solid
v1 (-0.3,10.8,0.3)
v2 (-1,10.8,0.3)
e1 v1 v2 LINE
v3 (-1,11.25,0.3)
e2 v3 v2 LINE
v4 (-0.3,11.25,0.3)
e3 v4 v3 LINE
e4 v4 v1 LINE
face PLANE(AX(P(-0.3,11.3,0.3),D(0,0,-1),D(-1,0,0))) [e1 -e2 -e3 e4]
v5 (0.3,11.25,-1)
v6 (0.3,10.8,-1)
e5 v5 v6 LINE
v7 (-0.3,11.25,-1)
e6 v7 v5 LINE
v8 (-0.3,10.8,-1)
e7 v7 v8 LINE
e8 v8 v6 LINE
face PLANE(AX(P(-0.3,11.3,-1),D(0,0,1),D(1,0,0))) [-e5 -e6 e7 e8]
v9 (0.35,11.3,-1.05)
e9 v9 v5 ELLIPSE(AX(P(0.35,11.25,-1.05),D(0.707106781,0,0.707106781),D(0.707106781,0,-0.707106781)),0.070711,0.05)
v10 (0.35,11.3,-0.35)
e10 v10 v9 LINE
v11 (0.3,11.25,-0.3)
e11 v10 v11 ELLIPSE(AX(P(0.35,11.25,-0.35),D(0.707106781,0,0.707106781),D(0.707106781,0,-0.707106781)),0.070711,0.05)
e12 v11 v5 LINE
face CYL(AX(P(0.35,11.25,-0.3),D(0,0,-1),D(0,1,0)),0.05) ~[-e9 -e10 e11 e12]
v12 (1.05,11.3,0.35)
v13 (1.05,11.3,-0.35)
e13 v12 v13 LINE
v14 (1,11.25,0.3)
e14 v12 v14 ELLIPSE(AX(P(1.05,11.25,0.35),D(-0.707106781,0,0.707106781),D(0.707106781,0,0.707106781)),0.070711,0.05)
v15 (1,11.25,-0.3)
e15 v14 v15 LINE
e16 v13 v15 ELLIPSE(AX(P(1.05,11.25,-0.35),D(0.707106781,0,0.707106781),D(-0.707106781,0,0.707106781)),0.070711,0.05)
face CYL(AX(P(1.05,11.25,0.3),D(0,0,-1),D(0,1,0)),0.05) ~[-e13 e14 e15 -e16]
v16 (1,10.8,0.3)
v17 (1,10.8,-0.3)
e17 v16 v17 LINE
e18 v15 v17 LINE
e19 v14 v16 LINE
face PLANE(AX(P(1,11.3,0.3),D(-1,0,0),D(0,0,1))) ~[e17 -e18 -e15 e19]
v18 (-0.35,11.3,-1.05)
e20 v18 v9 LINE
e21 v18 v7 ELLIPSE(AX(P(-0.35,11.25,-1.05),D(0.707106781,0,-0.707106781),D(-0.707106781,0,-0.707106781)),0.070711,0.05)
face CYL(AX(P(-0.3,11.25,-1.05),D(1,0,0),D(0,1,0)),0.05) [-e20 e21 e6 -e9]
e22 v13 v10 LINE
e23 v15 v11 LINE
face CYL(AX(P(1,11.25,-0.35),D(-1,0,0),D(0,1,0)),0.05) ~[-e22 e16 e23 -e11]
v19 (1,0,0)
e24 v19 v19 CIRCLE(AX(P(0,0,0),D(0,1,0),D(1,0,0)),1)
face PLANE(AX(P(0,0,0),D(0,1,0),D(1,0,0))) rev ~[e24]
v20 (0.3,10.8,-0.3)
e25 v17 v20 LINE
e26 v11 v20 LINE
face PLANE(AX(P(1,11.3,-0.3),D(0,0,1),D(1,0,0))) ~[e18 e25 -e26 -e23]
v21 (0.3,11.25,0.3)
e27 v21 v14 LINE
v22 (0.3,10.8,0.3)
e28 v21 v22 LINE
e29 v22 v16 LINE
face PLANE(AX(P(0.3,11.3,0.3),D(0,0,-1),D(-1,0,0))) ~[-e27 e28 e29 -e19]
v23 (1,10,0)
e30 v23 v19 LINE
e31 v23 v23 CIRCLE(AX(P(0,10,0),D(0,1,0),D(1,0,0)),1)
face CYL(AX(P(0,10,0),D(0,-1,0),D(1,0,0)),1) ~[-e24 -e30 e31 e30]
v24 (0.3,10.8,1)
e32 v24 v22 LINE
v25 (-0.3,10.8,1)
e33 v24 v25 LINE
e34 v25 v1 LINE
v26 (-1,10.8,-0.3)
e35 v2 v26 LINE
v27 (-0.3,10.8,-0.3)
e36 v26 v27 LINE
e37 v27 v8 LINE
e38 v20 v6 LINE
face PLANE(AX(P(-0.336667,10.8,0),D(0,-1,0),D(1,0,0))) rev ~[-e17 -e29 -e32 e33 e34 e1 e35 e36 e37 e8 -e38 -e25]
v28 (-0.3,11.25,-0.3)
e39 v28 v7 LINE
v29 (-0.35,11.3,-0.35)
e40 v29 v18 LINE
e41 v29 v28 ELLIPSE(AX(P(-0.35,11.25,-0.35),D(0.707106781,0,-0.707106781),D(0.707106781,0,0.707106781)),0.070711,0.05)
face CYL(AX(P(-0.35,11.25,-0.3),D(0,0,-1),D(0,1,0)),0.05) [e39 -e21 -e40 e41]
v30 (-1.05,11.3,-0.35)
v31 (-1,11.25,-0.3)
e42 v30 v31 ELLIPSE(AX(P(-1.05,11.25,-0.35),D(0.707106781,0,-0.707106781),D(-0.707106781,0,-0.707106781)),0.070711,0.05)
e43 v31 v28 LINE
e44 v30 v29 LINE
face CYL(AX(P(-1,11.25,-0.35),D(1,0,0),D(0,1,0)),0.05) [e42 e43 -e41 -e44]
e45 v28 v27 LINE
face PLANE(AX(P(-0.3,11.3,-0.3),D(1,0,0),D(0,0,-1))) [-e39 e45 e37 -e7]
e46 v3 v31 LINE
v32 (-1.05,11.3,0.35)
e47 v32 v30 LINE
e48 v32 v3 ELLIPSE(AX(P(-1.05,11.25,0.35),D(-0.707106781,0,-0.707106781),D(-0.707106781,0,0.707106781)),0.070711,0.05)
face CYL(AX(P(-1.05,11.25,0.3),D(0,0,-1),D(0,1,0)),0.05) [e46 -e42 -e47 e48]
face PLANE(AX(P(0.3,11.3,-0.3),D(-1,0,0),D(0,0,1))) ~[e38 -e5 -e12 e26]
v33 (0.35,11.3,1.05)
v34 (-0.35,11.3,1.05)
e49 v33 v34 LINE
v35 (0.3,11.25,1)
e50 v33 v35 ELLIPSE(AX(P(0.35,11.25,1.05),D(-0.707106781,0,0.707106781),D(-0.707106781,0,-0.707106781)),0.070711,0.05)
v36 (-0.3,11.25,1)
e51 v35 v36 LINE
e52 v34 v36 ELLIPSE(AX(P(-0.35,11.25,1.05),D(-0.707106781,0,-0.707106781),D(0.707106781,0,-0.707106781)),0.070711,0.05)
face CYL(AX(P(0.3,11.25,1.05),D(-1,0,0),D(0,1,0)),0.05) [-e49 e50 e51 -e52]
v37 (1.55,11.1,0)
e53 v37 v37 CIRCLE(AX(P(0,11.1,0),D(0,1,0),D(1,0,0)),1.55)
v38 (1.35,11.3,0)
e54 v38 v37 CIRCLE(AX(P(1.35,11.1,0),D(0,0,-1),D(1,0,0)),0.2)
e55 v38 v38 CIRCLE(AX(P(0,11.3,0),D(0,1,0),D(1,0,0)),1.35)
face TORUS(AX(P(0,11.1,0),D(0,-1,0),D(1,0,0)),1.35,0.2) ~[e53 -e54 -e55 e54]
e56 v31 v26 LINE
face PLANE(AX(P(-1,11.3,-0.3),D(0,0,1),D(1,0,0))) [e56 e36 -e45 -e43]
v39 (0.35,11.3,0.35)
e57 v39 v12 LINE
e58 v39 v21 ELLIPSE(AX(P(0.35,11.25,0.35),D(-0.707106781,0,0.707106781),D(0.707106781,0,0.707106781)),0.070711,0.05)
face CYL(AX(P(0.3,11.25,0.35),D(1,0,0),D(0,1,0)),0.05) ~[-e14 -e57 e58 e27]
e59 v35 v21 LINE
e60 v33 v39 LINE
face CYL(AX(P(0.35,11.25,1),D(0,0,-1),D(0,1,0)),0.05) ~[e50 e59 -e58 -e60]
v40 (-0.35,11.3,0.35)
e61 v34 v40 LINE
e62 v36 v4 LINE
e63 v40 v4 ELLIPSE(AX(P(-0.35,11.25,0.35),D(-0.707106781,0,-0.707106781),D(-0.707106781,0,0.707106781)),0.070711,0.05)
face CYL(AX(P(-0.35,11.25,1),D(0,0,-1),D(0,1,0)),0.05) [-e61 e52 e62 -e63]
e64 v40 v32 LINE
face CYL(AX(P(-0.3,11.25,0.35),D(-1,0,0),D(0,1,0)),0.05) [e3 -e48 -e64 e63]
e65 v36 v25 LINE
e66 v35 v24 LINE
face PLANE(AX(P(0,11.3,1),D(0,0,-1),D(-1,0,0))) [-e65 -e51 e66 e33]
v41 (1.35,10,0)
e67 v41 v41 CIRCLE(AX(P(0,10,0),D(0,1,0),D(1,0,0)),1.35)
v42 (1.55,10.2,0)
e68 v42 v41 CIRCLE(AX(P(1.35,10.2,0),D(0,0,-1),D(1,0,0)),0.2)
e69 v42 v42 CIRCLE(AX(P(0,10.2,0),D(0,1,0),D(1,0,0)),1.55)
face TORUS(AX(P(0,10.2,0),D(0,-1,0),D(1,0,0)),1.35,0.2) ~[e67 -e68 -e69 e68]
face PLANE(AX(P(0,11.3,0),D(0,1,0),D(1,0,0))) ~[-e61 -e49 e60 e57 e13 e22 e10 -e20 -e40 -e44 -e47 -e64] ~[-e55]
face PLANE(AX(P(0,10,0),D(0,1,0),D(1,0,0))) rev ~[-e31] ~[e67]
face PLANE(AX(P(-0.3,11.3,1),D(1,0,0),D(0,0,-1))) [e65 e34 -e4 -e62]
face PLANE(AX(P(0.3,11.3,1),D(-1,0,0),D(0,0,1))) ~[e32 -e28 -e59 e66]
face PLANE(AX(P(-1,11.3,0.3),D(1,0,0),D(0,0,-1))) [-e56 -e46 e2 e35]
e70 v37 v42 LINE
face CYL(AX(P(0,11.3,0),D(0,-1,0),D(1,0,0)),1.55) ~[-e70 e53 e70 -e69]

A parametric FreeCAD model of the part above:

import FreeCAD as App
import Part
import Sketcher
Q = App.Units.Quantity


def edges_at(feature, points):
    """Names of the edges that pass closest to the given points."""
    edges = feature.Shape.Edges
    near = lambda p: min(range(len(edges)), key=lambda i: edges[i].distToShape(Part.Vertex(*p))[0])
    return sorted({f"Edge{near(p) + 1}" for p in points})

doc = App.newDocument("Part")
params = doc.addObject("Spreadsheet::Sheet", "Params")
for row, (alias, value) in enumerate([
    ("sketch1_width", "1 mm"),
    ("sketch1_height", "10 mm"),
    ("sketch1_height2", "11.3 mm"),
    ("sketch1_width2", "0.55 mm"),
    ("revolution_angle", "360 deg"),
    ("fillet_radius", "0.2 mm"),
    ("sketch2_height", "2 mm"),
    ("sketch2_width", "0.3 mm"),
    ("sketch2_width2", "0.7 mm"),
    ("pocket1_length", "0.5 mm"),
    ("fillet2_radius", "0.05 mm"),
], start=1):
    params.set(f"A{row}", alias)
    params.set(f"B{row}", "=" + value)
    params.setAlias(f"B{row}", alias)

body = doc.addObject("PartDesign::Body", "Body")

# Sketch on XY plane
sketch1 = body.newObject("Sketcher::SketchObject", "Sketch")
sketch1.AttachmentSupport = (doc.getObject("XY_Plane"), [""])
sketch1.MapMode = "FlatFace"
sketch1.addGeometry([
    Part.LineSegment(App.Vector(0, 11.3, 0), App.Vector(0, 0, 0)),  # 0
    Part.LineSegment(App.Vector(0, 0, 0), App.Vector(1, 0, 0)),  # 1
    Part.LineSegment(App.Vector(1, 0, 0), App.Vector(1, 10, 0)),  # 2
    Part.LineSegment(App.Vector(1, 10, 0), App.Vector(1.55, 10, 0)),  # 3
    Part.LineSegment(App.Vector(1.55, 10, 0), App.Vector(1.55, 11.3, 0)),  # 4
    Part.LineSegment(App.Vector(1.55, 11.3, 0), App.Vector(0, 11.3, 0)),  # 5
], False)
sketch1.addConstraint([
    Sketcher.Constraint("Coincident", 0, 2, 1, 1),
    Sketcher.Constraint("Coincident", 1, 2, 2, 1),
    Sketcher.Constraint("Coincident", 2, 2, 3, 1),
    Sketcher.Constraint("Coincident", 3, 2, 4, 1),
    Sketcher.Constraint("Coincident", 4, 2, 5, 1),
    Sketcher.Constraint("Coincident", 5, 2, 0, 1),
    Sketcher.Constraint("Vertical", 0),
    Sketcher.Constraint("Horizontal", 1),
    Sketcher.Constraint("Vertical", 2),
    Sketcher.Constraint("Horizontal", 3),
    Sketcher.Constraint("Vertical", 4),
    Sketcher.Constraint("Horizontal", 5),
    Sketcher.Constraint("Coincident", 0, 2, -1, 1),
    Sketcher.Constraint("DistanceX", 1, 1, 1, 2, Q("1 mm")),
    Sketcher.Constraint("DistanceY", 2, 1, 2, 2, Q("10 mm")),
    Sketcher.Constraint("DistanceY", 0, 2, 0, 1, Q("11.3 mm")),
    Sketcher.Constraint("DistanceX", 3, 1, 3, 2, Q("0.55 mm")),
])
sketch1.setExpression("Constraints[13]", "Params.sketch1_width")
sketch1.setExpression("Constraints[14]", "Params.sketch1_height")
sketch1.setExpression("Constraints[15]", "Params.sketch1_height2")
sketch1.setExpression("Constraints[16]", "Params.sketch1_width2")
revolution = body.newObject("PartDesign::Revolution", "Revolution")
revolution.Profile = sketch1
revolution.ReferenceAxis = (sketch1, ["V_Axis"])
revolution.setExpression("Angle", "Params.revolution_angle")
doc.recompute()

fillet = body.newObject("PartDesign::Fillet", "Fillet")
fillet.Base = (revolution, edges_at(revolution, [(-1.55, 11.3, 0), (-1.55, 10, 0)]))
fillet.setExpression("Radius", "Params.fillet_radius")

# Sketch on XZ plane
sketch2 = body.newObject("Sketcher::SketchObject", "Sketch001")
sketch2.AttachmentSupport = (doc.getObject("XZ_Plane"), [""])
sketch2.MapMode = "FlatFace"
sketch2.AttachmentOffset = App.Placement(App.Vector(0, 0, -11.3), App.Rotation())
sketch2.addGeometry([
    Part.LineSegment(App.Vector(-0.3, 1, 0), App.Vector(0, 1, 0)),  # 0
    Part.LineSegment(App.Vector(0, 1, 0), App.Vector(0, -1, 0)),  # 1
    Part.LineSegment(App.Vector(0, -1, 0), App.Vector(-0.3, -1, 0)),  # 2
    Part.LineSegment(App.Vector(-0.3, -1, 0), App.Vector(-0.3, -0.3, 0)),  # 3
    Part.LineSegment(App.Vector(-0.3, -0.3, 0), App.Vector(-1, -0.3, 0)),  # 4
    Part.LineSegment(App.Vector(-1, -0.3, 0), App.Vector(-1, 0.3, 0)),  # 5
    Part.LineSegment(App.Vector(-1, 0.3, 0), App.Vector(-0.3, 0.3, 0)),  # 6
    Part.LineSegment(App.Vector(-0.3, 0.3, 0), App.Vector(-0.3, 1, 0)),  # 7
], False)
sketch2.addConstraint([
    Sketcher.Constraint("Coincident", 0, 2, 1, 1),
    Sketcher.Constraint("Coincident", 1, 2, 2, 1),
    Sketcher.Constraint("Coincident", 2, 2, 3, 1),
    Sketcher.Constraint("Coincident", 3, 2, 4, 1),
    Sketcher.Constraint("Coincident", 4, 2, 5, 1),
    Sketcher.Constraint("Coincident", 5, 2, 6, 1),
    Sketcher.Constraint("Coincident", 6, 2, 7, 1),
    Sketcher.Constraint("Coincident", 7, 2, 0, 1),
    Sketcher.Constraint("Horizontal", 0),
    Sketcher.Constraint("Vertical", 1),
    Sketcher.Constraint("Horizontal", 2),
    Sketcher.Constraint("Vertical", 3),
    Sketcher.Constraint("Horizontal", 4),
    Sketcher.Constraint("Vertical", 5),
    Sketcher.Constraint("Horizontal", 6),
    Sketcher.Constraint("Vertical", 7),
    Sketcher.Constraint("Symmetric", 0, 2, 1, 2, -1, 1),
    Sketcher.Constraint("Symmetric", 3, 2, 6, 2, -1),
    Sketcher.Constraint("Equal", 6, 3),
    Sketcher.Constraint("DistanceY", 1, 2, 1, 1, Q("2 mm")),
    Sketcher.Constraint("DistanceX", 0, 1, 0, 2, Q("0.3 mm")),
    Sketcher.Constraint("DistanceX", 4, 2, 4, 1, Q("0.7 mm")),
])
sketch2.setExpression("Constraints[19]", "Params.sketch2_height")
sketch2.setExpression("Constraints[20]", "Params.sketch2_width")
sketch2.setExpression("Constraints[21]", "Params.sketch2_width2")
pocket1 = body.newObject("PartDesign::Pocket", "Pocket")
pocket1.Profile = sketch2
pocket1.setExpression("Length", "Params.pocket1_length")
pocket1.Reversed = True
doc.recompute()

mirrored = body.newObject("PartDesign::Mirrored", "Mirrored")
mirrored.Originals = [pocket1]
mirrored.MirrorPlane = (doc.getObject("YZ_Plane"), [""])
body.Tip = mirrored
doc.recompute()

fillet2 = body.newObject("PartDesign::Fillet", "Fillet001")
fillet2.Base = (mirrored, edges_at(mirrored, [
    (-0.65, 11.3, 0.3),
    (-1, 11.3, 0),
    (-0.65, 11.3, -0.3),
    (-0.3, 11.3, -0.65),
    (0, 11.3, -1),
    (0, 11.3, -1),
    (0.3, 11.3, -0.65),
    (0.65, 11.3, -0.3),
    (0.65, 11.3, 0.3),
    (1, 11.3, 0),
    (0.3, 11.3, 0.65),
    (-0.3, 11.3, 0.65),
    (0, 11.3, 1),
    (0, 11.3, 1),
]))
fillet2.setExpression("Radius", "Params.fillet2_radius")

doc.recompute()
